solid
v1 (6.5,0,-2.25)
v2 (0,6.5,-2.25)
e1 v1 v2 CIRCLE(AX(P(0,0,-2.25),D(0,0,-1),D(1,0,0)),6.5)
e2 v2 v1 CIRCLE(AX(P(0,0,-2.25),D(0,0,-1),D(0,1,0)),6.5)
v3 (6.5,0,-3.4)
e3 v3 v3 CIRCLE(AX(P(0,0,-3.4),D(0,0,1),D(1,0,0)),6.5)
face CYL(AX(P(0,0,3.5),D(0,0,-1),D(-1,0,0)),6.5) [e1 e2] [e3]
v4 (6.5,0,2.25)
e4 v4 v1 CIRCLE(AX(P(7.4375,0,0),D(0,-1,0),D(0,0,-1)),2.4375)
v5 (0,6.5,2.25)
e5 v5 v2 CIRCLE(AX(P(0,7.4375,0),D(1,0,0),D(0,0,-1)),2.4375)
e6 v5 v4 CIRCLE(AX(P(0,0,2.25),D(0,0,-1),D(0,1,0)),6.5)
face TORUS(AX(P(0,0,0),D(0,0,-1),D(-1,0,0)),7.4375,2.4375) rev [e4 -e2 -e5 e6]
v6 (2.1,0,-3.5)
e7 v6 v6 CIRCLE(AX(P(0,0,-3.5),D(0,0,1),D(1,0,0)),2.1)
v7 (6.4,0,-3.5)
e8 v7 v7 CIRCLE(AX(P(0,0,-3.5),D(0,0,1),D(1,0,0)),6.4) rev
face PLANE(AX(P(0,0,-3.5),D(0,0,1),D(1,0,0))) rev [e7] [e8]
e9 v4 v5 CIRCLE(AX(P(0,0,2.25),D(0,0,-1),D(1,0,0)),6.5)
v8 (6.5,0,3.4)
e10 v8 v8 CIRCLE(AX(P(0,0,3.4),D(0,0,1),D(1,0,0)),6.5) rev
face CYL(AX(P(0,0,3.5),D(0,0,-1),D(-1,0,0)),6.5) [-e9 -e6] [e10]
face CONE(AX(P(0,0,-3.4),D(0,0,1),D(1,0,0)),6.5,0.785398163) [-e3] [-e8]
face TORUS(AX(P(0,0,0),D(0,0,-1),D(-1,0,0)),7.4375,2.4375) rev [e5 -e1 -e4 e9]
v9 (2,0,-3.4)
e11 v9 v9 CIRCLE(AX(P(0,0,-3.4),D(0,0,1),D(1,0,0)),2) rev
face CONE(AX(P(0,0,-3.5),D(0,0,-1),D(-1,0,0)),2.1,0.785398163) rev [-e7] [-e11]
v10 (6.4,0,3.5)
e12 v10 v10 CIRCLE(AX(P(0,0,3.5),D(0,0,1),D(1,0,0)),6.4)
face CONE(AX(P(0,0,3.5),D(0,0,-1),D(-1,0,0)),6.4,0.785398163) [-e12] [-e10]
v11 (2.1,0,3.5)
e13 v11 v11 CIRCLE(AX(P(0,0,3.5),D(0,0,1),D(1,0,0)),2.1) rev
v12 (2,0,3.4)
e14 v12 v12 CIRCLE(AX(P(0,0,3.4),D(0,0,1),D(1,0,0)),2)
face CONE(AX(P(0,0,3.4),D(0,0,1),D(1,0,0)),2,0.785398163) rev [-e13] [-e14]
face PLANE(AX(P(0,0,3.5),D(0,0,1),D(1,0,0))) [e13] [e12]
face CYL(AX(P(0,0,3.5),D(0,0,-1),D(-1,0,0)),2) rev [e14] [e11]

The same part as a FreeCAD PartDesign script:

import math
import FreeCAD as App
import Part
import Sketcher


def edges_at(feature, points):
    """Names of the edges that pass closest to the given points."""
    edges = feature.Shape.Edges
    near = lambda p: min(range(len(edges)), key=lambda i: edges[i].distToShape(Part.Vertex(*p))[0])
    return sorted({f"Edge{near(p) + 1}" for p in points})

doc = App.newDocument("Part")
params = doc.addObject("Spreadsheet::Sheet", "Params")
for row, (alias, value) in enumerate([
    ("sketch1_diameter", "13 mm"),
    ("sketch1_diameter2", "4 mm"),
    ("pad1_length", "7 mm"),
    ("sketch2_height", "4.5 mm"),
    ("sketch3_radius", "6.5 mm"),
    ("chamfer_size", "0.1 mm"),
], start=1):
    params.set(f"A{row}", alias)
    params.set(f"B{row}", "=" + value)
    params.setAlias(f"B{row}", alias)

body = doc.addObject("PartDesign::Body", "Body")

# Sketch on XY plane
sketch1 = body.newObject("Sketcher::SketchObject", "Sketch")
sketch1.AttachmentSupport = (doc.getObject("XY_Plane"), [""])
sketch1.MapMode = "FlatFace"
sketch1.addGeometry([
    Part.Circle(App.Vector(0, 0, 0), App.Vector(0, 0, 1), 6.5),
    Part.Circle(App.Vector(0, 0, 0), App.Vector(0, 0, 1), 2),
], False)
sketch1.addConstraint([
    Sketcher.Constraint("Coincident", 0, 3, -1, 1),
    Sketcher.Constraint("Coincident", 1, 3, -1, 1),
    Sketcher.Constraint("Diameter", 0, 13.0),
    Sketcher.Constraint("Diameter", 1, 4.0),
])
sketch1.setExpression("Constraints[2]", "Params.sketch1_diameter")
sketch1.setExpression("Constraints[3]", "Params.sketch1_diameter2")
pad1 = body.newObject("PartDesign::Pad", "Pad")
pad1.Profile = sketch1
pad1.setExpression("Length", "Params.pad1_length")
pad1.Midplane = True

# Sketch on YZ plane
sketch2 = body.newObject("Sketcher::SketchObject", "Sketch001")
sketch2.AttachmentSupport = (doc.getObject("YZ_Plane"), [""])
sketch2.MapMode = "FlatFace"
sketch2.addGeometry([
    Part.LineSegment(App.Vector(6.5, -2.2, 0), App.Vector(6.5, 2.2, 0)),
    Part.ArcOfCircle(Part.Circle(App.Vector(7.4, 0, 0), App.Vector(0, 0, 1), 2.4), math.radians(113), math.radians(247)),
], False)
sketch2.addConstraint([
    Sketcher.Constraint("Coincident", 0, 1, 1, 2),
    Sketcher.Constraint("Coincident", 1, 1, 0, 2),
    Sketcher.Constraint("Vertical", 0),
    Sketcher.Constraint("PointOnObject", 1, 3, -1),
    Sketcher.Constraint("DistanceY", 0, 1, 0, 2, 4.5),
    Sketcher.Constraint("DistanceX", -1, 1, 0, 1, 6.5),
    Sketcher.Constraint("Radius", 1, 2.4375),
])
sketch2.setExpression("Constraints[4]", "Params.sketch2_height")

# Sketch on XY plane
sketch3 = body.newObject("Sketcher::SketchObject", "Sketch002")
sketch3.AttachmentSupport = (doc.getObject("XY_Plane"), [""])
sketch3.MapMode = "FlatFace"
sketch3.AttachmentOffset = App.Placement(App.Vector(0, 0, -3.5), App.Rotation())
sketch3.addGeometry([
    Part.ArcOfCircle(Part.Circle(App.Vector(0, 0, 0), App.Vector(0, 0, 1), 6), math.radians(0), math.radians(90)),
    Part.ArcOfCircle(Part.Circle(App.Vector(0, 0, 0), App.Vector(0, 0, 1), 6), math.radians(90), math.radians(180)),
    Part.ArcOfCircle(Part.Circle(App.Vector(0, 0, 0), App.Vector(0, 0, 1), 6), math.radians(180), math.radians(270)),
    Part.ArcOfCircle(Part.Circle(App.Vector(0, 0, 0), App.Vector(0, 0, 1), 6), math.radians(-90), math.radians(0)),
], False)
sketch3.addConstraint([
    Sketcher.Constraint("Tangent", 0, 2, 1, 1),
    Sketcher.Constraint("Tangent", 1, 2, 2, 1),
    Sketcher.Constraint("Tangent", 2, 2, 3, 1),
    Sketcher.Constraint("Tangent", 3, 2, 0, 1),
    Sketcher.Constraint("Coincident", 0, 3, -1, 1),
    Sketcher.Constraint("Equal", 0, 1),
    Sketcher.Constraint("PointOnObject", 0, 2, -2),
    Sketcher.Constraint("PointOnObject", 1, 2, -1),
    Sketcher.Constraint("PointOnObject", 2, 2, -2),
    Sketcher.Constraint("PointOnObject", 3, 2, -1),
    Sketcher.Constraint("Radius", 0, 6.5),
])
sketch3.setExpression("Constraints[10]", "Params.sketch3_radius")
doc.recompute()

subtractivepipe = body.newObject("PartDesign::SubtractivePipe", "SubtractivePipe")
subtractivepipe.Profile = sketch2
subtractivepipe.Spine = (sketch3, ["Edge1", "Edge2", "Edge3", "Edge4"])
doc.recompute()

chamfer = body.newObject("PartDesign::Chamfer", "Chamfer")
chamfer.Base = (subtractivepipe, edges_at(subtractivepipe, [
    (-6.5, 0, -3.5),
    (-6.5, 0, 3.5),
    (-2, 0, -3.5),
    (-2, 0, 3.5),
]))
chamfer.setExpression("Size", "Params.chamfer_size")

doc.recompute()
